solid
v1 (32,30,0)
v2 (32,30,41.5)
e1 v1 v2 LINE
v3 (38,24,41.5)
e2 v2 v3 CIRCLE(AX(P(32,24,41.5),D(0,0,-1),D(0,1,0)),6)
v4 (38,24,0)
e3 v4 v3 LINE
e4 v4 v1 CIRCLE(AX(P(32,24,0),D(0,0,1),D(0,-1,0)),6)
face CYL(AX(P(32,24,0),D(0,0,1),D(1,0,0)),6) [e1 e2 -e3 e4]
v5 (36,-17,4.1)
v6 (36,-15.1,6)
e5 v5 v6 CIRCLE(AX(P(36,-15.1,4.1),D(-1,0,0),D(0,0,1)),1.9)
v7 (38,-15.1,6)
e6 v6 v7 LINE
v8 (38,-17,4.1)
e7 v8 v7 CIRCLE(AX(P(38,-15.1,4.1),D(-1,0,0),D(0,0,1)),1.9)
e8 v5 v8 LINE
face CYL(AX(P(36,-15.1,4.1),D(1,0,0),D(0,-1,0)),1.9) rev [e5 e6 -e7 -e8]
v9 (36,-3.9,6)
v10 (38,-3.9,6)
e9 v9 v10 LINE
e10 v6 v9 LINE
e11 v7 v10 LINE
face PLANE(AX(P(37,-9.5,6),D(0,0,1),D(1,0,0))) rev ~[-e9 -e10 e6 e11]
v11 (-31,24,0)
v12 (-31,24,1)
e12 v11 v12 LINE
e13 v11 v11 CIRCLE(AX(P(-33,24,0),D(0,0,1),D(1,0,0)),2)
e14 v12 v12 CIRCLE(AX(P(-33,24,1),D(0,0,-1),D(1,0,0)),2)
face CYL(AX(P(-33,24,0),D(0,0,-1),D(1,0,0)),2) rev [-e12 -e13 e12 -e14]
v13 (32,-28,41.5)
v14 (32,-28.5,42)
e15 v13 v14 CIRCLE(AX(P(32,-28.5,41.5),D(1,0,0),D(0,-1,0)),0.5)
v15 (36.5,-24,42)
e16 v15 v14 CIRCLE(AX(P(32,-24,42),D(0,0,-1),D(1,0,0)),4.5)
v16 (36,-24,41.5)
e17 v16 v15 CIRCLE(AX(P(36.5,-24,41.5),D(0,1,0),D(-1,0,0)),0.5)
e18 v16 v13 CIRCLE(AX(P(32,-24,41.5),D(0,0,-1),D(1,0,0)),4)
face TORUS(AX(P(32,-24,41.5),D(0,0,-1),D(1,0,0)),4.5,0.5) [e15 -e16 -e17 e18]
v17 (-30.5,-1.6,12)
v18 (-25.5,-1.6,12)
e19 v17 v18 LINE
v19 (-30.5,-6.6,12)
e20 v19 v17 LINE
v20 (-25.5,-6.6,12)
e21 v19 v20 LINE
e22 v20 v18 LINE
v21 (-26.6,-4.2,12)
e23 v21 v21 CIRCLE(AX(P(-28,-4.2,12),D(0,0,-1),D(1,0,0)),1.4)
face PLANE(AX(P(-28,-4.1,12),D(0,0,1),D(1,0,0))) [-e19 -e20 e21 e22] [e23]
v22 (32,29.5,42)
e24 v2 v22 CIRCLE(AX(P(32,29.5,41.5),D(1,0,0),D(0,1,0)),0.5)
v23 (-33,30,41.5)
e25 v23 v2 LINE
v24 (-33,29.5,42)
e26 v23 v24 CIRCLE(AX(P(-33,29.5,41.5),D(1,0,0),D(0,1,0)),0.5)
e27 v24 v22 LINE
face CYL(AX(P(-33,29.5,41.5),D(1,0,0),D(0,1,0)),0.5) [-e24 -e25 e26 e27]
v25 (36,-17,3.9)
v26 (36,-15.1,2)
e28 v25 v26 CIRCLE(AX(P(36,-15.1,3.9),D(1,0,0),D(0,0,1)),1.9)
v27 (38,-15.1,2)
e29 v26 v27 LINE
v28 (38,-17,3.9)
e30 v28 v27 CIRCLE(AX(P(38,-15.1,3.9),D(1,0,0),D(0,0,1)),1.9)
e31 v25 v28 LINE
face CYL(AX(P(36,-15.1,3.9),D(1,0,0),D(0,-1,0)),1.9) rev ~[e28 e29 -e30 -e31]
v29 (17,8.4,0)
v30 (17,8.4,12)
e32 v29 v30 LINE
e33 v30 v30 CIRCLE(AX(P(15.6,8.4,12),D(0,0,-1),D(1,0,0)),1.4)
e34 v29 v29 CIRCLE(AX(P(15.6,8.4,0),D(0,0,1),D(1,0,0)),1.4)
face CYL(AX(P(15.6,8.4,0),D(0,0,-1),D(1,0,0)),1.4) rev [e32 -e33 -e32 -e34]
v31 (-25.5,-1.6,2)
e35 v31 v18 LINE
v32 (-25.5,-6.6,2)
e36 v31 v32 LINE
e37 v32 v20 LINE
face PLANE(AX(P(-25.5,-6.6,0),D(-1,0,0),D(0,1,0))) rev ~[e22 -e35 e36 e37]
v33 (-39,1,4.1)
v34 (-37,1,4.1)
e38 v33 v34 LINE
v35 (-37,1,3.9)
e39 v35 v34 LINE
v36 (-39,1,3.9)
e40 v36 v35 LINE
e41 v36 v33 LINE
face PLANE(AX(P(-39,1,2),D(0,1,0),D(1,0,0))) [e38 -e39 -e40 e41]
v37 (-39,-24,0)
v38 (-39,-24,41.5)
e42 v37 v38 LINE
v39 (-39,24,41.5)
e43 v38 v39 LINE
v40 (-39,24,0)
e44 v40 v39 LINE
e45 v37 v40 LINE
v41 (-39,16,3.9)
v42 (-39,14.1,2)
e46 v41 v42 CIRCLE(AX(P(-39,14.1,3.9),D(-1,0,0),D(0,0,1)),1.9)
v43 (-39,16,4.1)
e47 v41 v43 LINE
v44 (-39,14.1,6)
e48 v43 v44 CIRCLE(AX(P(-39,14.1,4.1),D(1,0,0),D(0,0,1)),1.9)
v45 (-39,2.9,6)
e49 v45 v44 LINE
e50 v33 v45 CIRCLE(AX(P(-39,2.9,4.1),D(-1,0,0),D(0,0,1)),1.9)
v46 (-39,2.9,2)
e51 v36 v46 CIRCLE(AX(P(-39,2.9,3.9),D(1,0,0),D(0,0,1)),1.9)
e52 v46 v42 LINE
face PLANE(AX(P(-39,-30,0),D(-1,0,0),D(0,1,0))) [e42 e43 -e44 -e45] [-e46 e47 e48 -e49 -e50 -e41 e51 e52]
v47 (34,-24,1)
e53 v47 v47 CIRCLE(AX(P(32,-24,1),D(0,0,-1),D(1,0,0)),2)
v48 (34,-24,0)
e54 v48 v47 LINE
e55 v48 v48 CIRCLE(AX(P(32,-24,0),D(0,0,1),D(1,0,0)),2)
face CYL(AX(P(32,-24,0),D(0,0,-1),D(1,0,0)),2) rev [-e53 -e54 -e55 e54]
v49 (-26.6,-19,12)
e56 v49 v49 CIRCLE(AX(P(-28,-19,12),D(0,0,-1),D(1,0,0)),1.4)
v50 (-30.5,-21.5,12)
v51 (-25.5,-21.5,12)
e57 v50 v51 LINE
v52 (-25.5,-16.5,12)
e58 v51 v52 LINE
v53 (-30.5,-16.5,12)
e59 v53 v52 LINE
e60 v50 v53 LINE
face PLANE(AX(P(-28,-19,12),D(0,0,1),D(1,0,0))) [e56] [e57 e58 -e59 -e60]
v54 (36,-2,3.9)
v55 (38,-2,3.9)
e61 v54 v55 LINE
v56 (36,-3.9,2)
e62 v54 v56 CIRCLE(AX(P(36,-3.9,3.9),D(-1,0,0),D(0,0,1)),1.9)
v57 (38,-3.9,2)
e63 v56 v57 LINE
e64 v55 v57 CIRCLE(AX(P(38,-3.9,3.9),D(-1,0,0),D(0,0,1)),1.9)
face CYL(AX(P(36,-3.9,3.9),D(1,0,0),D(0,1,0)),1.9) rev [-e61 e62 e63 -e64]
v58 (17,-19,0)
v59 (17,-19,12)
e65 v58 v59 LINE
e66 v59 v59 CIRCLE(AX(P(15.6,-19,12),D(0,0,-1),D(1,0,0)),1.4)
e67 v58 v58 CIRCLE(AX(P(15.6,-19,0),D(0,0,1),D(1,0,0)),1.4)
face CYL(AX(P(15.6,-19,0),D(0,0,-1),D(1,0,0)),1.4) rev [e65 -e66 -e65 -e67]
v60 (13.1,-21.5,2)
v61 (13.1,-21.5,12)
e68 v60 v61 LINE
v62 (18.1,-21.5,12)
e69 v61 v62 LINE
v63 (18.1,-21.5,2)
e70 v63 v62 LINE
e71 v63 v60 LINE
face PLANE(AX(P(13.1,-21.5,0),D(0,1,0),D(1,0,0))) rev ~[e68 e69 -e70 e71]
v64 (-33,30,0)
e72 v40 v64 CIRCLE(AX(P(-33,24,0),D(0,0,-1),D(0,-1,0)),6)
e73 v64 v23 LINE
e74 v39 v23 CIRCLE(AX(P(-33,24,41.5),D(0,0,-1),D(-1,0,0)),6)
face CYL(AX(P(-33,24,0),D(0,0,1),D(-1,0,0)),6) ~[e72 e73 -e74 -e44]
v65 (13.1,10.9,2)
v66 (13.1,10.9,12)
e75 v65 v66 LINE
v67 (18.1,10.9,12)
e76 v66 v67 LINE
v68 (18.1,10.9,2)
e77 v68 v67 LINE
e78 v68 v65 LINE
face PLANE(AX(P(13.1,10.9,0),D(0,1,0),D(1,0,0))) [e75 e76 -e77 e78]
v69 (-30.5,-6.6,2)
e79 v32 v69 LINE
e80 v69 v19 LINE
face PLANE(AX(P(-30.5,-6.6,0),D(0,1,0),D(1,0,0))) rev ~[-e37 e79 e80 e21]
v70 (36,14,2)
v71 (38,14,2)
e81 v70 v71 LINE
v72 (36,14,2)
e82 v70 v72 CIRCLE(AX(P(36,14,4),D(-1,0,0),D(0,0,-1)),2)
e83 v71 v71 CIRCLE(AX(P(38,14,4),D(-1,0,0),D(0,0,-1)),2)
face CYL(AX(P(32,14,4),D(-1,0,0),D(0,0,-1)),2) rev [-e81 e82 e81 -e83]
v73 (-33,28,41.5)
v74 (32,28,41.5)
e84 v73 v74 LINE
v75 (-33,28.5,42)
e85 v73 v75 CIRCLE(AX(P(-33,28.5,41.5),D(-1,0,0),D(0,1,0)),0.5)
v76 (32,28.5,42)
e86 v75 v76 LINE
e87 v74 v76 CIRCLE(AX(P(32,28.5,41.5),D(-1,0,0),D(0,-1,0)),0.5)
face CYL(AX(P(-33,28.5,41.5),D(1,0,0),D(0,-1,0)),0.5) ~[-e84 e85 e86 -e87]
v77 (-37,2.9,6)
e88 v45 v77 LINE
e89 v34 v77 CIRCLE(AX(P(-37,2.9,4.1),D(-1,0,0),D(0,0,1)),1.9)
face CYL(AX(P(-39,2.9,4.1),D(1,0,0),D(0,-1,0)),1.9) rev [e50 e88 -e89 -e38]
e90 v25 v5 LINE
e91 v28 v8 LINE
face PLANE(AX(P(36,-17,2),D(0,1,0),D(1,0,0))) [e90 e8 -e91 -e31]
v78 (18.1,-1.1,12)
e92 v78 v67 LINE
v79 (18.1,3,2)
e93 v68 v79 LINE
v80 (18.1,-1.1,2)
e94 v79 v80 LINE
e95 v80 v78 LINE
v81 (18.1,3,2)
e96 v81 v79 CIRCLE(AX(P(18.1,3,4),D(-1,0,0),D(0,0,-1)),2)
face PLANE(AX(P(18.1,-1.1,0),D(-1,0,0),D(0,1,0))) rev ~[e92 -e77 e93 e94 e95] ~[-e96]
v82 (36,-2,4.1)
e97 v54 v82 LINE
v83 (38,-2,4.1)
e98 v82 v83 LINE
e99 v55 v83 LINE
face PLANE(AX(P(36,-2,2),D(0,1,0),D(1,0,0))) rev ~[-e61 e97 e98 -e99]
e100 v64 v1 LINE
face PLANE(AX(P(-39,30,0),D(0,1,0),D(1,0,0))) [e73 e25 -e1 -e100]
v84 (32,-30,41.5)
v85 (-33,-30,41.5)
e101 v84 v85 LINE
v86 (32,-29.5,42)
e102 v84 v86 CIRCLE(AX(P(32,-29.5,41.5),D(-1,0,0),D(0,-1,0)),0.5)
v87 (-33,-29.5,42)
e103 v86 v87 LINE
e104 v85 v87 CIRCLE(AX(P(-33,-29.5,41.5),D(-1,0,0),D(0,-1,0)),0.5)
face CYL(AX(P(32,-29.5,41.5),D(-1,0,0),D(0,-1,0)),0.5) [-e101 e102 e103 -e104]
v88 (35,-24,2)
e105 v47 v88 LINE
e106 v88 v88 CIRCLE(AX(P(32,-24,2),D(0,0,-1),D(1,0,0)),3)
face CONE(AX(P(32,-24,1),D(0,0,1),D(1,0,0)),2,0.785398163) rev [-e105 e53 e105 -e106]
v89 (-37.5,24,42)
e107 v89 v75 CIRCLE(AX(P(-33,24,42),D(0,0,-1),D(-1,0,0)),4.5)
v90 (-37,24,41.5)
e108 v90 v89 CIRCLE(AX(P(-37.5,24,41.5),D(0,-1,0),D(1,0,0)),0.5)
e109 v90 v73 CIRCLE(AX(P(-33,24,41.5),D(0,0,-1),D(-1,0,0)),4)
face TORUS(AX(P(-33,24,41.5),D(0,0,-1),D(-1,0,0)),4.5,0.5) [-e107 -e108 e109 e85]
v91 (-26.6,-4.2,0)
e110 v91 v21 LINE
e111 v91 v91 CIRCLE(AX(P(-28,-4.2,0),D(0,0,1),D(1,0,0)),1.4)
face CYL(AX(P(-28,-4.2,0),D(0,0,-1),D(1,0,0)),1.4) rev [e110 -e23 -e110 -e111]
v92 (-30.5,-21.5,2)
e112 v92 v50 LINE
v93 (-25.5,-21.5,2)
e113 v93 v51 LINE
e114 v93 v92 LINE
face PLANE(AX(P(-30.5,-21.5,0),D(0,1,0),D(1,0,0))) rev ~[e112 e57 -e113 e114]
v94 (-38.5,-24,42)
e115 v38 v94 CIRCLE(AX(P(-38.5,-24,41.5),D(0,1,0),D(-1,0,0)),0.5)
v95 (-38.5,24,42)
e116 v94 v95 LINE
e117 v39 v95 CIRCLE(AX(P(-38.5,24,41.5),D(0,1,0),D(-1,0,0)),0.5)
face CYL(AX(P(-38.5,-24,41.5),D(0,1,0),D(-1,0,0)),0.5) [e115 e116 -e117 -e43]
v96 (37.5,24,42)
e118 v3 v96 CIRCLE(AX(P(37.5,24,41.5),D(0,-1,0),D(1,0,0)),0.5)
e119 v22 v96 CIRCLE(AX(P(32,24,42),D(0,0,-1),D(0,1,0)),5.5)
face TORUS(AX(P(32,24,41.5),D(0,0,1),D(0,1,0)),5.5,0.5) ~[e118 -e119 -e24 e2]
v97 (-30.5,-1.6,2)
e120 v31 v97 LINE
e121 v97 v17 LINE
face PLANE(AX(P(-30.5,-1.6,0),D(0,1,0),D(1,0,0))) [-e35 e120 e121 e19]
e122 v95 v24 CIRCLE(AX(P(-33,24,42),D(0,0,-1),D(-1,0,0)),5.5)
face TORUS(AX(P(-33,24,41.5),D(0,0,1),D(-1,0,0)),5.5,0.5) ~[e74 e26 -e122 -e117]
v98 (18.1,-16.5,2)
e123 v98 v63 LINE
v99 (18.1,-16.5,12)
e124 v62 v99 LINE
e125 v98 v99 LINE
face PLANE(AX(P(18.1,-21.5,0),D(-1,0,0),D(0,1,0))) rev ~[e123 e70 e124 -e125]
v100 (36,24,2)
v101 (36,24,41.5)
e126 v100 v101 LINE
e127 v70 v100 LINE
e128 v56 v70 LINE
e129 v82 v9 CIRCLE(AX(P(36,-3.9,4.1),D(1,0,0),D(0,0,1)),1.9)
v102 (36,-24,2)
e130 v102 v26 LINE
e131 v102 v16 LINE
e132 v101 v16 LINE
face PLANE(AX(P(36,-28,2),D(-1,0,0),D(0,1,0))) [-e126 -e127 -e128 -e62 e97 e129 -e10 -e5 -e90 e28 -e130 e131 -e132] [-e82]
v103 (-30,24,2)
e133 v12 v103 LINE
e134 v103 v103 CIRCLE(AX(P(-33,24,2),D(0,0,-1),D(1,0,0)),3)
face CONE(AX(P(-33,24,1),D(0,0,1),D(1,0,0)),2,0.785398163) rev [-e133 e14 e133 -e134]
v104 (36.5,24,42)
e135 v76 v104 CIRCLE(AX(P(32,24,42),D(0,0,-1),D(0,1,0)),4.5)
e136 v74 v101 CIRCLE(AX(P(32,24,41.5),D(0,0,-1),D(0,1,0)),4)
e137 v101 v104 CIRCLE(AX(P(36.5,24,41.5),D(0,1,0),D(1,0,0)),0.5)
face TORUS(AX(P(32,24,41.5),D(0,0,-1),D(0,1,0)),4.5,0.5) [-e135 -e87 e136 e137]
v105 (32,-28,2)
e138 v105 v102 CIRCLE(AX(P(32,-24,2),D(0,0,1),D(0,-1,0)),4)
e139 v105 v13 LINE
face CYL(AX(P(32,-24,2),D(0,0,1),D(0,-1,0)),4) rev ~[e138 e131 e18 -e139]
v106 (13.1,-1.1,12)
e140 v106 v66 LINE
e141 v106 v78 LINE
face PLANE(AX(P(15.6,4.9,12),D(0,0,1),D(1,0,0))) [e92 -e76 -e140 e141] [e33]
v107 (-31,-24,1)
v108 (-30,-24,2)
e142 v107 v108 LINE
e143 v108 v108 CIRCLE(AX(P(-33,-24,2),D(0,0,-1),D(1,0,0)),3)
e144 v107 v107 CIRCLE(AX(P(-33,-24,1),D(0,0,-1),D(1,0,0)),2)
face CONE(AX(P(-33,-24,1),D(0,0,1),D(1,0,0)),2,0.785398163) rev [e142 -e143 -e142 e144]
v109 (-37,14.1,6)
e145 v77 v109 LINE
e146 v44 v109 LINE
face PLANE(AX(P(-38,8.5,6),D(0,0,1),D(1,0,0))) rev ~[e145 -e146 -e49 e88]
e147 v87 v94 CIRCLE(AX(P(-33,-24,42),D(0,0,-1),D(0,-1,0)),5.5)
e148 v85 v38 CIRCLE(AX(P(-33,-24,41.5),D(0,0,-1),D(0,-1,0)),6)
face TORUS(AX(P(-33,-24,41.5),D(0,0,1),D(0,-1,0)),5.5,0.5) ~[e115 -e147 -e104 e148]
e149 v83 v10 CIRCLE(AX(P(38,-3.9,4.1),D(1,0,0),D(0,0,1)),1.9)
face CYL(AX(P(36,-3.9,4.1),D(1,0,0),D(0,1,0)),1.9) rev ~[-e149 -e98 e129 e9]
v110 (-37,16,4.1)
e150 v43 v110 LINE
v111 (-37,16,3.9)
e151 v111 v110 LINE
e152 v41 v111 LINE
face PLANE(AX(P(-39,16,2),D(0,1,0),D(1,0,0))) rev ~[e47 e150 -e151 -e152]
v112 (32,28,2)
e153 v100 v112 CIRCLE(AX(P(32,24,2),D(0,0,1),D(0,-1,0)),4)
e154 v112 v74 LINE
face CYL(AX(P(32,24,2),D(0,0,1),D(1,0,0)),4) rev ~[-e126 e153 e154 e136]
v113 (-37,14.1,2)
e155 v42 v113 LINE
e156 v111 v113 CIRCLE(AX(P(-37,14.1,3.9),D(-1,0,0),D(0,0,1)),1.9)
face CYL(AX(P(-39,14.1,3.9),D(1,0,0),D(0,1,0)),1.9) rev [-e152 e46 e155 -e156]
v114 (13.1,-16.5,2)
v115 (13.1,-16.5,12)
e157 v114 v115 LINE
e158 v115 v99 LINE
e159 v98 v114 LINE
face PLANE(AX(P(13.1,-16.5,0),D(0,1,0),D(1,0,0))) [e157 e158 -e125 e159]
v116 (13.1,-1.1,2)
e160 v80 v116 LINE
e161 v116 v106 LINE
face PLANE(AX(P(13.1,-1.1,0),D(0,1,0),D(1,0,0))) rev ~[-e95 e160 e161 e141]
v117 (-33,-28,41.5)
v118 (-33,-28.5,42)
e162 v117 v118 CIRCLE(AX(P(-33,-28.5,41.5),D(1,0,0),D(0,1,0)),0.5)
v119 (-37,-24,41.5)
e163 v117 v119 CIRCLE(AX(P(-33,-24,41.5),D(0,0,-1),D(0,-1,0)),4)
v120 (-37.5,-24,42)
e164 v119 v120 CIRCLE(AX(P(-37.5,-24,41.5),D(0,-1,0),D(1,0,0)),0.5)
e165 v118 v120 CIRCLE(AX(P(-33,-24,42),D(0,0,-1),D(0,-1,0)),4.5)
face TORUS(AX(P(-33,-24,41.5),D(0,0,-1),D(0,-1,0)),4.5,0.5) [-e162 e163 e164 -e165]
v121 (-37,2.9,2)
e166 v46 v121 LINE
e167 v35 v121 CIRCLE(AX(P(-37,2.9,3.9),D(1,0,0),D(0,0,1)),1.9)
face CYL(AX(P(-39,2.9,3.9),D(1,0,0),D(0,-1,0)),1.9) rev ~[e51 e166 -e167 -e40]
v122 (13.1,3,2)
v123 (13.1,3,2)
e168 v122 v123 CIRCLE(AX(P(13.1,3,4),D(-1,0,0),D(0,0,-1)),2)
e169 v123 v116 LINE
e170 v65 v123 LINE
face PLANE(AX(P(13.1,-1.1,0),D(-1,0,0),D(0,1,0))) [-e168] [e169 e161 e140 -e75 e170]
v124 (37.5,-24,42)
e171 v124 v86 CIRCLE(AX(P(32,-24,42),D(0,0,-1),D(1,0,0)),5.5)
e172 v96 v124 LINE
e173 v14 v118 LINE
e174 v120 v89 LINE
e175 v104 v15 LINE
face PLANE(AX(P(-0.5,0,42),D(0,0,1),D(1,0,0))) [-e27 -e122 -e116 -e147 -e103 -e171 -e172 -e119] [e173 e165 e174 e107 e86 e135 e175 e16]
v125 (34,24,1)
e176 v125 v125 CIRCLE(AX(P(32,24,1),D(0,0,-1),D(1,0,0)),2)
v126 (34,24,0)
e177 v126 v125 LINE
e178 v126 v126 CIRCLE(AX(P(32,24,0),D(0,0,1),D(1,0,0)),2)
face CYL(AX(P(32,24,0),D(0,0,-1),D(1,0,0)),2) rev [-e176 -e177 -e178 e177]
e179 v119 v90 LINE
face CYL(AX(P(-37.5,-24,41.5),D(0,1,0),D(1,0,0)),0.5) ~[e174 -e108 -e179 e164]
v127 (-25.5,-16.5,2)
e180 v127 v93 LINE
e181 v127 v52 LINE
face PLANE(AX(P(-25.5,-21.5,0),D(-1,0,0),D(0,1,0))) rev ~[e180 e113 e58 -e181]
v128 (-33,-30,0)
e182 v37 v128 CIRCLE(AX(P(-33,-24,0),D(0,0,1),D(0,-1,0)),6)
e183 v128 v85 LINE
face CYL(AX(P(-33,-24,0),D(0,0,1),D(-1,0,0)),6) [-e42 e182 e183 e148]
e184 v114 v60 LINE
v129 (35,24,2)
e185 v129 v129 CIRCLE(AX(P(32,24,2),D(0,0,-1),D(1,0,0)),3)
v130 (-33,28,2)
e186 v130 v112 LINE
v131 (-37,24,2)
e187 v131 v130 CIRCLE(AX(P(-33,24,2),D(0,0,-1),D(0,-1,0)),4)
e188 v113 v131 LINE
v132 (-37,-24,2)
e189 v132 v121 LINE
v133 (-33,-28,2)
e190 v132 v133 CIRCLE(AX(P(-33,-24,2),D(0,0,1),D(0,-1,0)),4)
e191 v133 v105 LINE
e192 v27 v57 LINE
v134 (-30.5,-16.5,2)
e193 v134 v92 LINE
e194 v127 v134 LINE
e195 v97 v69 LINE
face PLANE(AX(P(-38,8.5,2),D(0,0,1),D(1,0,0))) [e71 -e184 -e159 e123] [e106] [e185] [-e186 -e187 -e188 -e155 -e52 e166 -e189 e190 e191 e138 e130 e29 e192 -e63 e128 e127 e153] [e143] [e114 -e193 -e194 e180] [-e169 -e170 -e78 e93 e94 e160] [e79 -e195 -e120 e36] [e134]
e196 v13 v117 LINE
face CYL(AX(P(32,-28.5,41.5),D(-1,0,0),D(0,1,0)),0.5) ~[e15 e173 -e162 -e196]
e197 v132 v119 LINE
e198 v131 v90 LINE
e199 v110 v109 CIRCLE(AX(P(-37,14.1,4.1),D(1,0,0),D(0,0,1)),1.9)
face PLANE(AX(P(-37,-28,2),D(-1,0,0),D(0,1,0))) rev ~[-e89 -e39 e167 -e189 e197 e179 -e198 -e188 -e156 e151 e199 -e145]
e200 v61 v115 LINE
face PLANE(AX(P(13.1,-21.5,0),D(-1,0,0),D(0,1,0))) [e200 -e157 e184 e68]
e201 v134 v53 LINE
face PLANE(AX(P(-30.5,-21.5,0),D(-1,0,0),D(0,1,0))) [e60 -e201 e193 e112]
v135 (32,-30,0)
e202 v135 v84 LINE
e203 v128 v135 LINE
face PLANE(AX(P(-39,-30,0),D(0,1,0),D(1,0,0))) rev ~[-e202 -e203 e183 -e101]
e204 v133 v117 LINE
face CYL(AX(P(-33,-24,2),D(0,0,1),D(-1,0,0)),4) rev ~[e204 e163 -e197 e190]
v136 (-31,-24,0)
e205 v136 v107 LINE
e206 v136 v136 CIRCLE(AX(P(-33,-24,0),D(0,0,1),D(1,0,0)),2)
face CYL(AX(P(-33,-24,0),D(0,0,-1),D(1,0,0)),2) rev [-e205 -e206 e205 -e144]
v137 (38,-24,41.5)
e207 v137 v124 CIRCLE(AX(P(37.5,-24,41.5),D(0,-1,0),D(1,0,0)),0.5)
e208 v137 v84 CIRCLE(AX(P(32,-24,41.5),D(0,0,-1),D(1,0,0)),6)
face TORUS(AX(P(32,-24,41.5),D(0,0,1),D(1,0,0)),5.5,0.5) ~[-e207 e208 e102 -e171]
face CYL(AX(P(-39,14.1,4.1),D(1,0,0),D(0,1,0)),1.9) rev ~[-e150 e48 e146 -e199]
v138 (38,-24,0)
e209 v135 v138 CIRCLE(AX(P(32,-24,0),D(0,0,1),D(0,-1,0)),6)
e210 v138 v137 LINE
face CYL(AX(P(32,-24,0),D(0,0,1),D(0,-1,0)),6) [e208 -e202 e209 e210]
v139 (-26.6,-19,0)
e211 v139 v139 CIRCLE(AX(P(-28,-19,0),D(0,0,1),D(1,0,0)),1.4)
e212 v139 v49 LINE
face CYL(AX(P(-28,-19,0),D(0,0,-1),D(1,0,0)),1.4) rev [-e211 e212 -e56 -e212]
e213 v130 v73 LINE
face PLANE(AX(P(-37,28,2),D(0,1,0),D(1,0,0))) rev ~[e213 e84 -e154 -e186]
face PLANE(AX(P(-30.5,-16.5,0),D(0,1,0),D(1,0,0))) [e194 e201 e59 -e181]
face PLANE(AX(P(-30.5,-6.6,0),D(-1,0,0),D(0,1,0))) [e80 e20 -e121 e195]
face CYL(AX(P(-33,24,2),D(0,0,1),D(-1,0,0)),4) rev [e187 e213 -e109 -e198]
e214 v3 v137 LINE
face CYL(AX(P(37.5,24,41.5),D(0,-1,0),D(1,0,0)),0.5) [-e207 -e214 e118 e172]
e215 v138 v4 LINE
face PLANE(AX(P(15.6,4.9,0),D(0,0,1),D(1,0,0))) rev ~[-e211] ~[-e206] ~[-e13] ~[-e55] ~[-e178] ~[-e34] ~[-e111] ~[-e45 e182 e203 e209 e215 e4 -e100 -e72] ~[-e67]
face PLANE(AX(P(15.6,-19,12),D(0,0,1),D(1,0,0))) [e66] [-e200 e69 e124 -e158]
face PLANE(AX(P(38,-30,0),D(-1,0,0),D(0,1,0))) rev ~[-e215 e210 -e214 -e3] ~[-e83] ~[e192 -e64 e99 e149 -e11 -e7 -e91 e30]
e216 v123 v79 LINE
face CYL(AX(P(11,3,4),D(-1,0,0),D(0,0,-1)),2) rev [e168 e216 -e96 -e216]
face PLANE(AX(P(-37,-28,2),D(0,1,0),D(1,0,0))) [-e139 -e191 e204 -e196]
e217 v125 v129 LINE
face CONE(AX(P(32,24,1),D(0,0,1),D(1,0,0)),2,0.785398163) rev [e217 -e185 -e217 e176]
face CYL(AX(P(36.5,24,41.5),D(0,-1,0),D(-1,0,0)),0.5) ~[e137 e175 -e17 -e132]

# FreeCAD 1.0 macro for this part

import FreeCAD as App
import Part
import Sketcher


def edges_at(feature, points):
    """Names of the edges that pass closest to the given points."""
    edges = feature.Shape.Edges
    near = lambda p: min(range(len(edges)), key=lambda i: edges[i].distToShape(Part.Vertex(*p))[0])
    return sorted({f"Edge{near(p) + 1}" for p in points})

doc = App.newDocument("Part")
body = doc.addObject("PartDesign::Body", "Body")

# Sketch on XY plane
sketch1 = body.newObject("Sketcher::SketchObject", "Sketch")
sketch1.AttachmentSupport = (doc.getObject("XY_Plane"), [""])
sketch1.MapMode = "FlatFace"
sketch1.addGeometry(Part.Circle(App.Vector(-28, -4.2, 0), App.Vector(0, 0, 1), 1.4), False)
sketch1.addConstraint([
    Sketcher.Constraint("Diameter", 0, 2.8),
    Sketcher.Constraint("DistanceX", 0, 3, -1, 1, 28.0),
    Sketcher.Constraint("DistanceY", 0, 3, -1, 1, 4.2),
])
pad1 = body.newObject("PartDesign::Pad", "Pad")
pad1.Profile = sketch1
pad1.Length = 14
body2 = doc.addObject("PartDesign::Body", "Body001")

# Sketch on XY plane
sketch2 = body2.newObject("Sketcher::SketchObject", "Sketch001")
sketch2.AttachmentSupport = (doc.getObject("XY_Plane001"), [""])
sketch2.MapMode = "FlatFace"
sketch2.addGeometry(Part.Circle(App.Vector(15.6, 8.4, 0), App.Vector(0, 0, 1), 1.4), False)
sketch2.addConstraint([
    Sketcher.Constraint("Diameter", 0, 2.8),
    Sketcher.Constraint("DistanceX", -1, 1, 0, 3, 15.6),
    Sketcher.Constraint("DistanceY", -1, 1, 0, 3, 8.4),
])
pad2 = body2.newObject("PartDesign::Pad", "Pad001")
pad2.Profile = sketch2
pad2.Length = 14
body3 = doc.addObject("PartDesign::Body", "Body002")

# Sketch on XY plane
sketch3 = body3.newObject("Sketcher::SketchObject", "Sketch002")
sketch3.AttachmentSupport = (doc.getObject("XY_Plane002"), [""])
sketch3.MapMode = "FlatFace"
sketch3.addGeometry(Part.Circle(App.Vector(15.6, -19, 0), App.Vector(0, 0, 1), 1.4), False)
sketch3.addConstraint([
    Sketcher.Constraint("Diameter", 0, 2.8),
    Sketcher.Constraint("DistanceY", 0, 3, -1, 1, 19.0),
    Sketcher.Constraint("DistanceX", -1, 1, 0, 3, 15.6),
])
pad3 = body3.newObject("PartDesign::Pad", "Pad002")
pad3.Profile = sketch3
pad3.Length = 14
body4 = doc.addObject("PartDesign::Body", "Body003")

# Sketch on XY plane
sketch4 = body4.newObject("Sketcher::SketchObject", "Sketch003")
sketch4.AttachmentSupport = (doc.getObject("XY_Plane003"), [""])
sketch4.MapMode = "FlatFace"
sketch4.addGeometry(Part.Circle(App.Vector(32, 24, 0), App.Vector(0, 0, 1), 2), False)
sketch4.addConstraint([
    Sketcher.Constraint("Diameter", 0, 4.0),
    Sketcher.Constraint("DistanceX", -1, 1, 0, 3, 32.0),
    Sketcher.Constraint("DistanceY", -1, 1, 0, 3, 24.0),
])
pad4 = body4.newObject("PartDesign::Pad", "Pad003")
pad4.Profile = sketch4
pad4.Length = 40
body5 = doc.addObject("PartDesign::Body", "Body004")

# Sketch on XY plane
sketch5 = body5.newObject("Sketcher::SketchObject", "Sketch004")
sketch5.AttachmentSupport = (doc.getObject("XY_Plane004"), [""])
sketch5.MapMode = "FlatFace"
sketch5.addGeometry(Part.Circle(App.Vector(32, -24, 0), App.Vector(0, 0, 1), 2), False)
sketch5.addConstraint([
    Sketcher.Constraint("Diameter", 0, 4.0),
    Sketcher.Constraint("DistanceX", -1, 1, 0, 3, 32.0),
    Sketcher.Constraint("DistanceY", 0, 3, -1, 1, 24.0),
])
pad5 = body5.newObject("PartDesign::Pad", "Pad004")
pad5.Profile = sketch5
pad5.Length = 40
body6 = doc.addObject("PartDesign::Body", "Body005")

# Sketch on XY plane
sketch6 = body6.newObject("Sketcher::SketchObject", "Sketch005")
sketch6.AttachmentSupport = (doc.getObject("XY_Plane005"), [""])
sketch6.MapMode = "FlatFace"
sketch6.addGeometry(Part.Circle(App.Vector(-33, 24, 0), App.Vector(0, 0, 1), 2), False)
sketch6.addConstraint([
    Sketcher.Constraint("Diameter", 0, 4.0),
    Sketcher.Constraint("DistanceX", 0, 3, -1, 1, 33.0),
    Sketcher.Constraint("DistanceY", -1, 1, 0, 3, 24.0),
])
pad6 = body6.newObject("PartDesign::Pad", "Pad005")
pad6.Profile = sketch6
pad6.Length = 40
body7 = doc.addObject("PartDesign::Body", "Body006")

# Sketch on XY plane
sketch7 = body7.newObject("Sketcher::SketchObject", "Sketch006")
sketch7.AttachmentSupport = (doc.getObject("XY_Plane006"), [""])
sketch7.MapMode = "FlatFace"
sketch7.addGeometry(Part.Circle(App.Vector(-33, -24, 0), App.Vector(0, 0, 1), 2), False)
sketch7.addConstraint([
    Sketcher.Constraint("Diameter", 0, 4.0),
    Sketcher.Constraint("DistanceX", 0, 3, -1, 1, 33.0),
    Sketcher.Constraint("DistanceY", 0, 3, -1, 1, 24.0),
])
pad7 = body7.newObject("PartDesign::Pad", "Pad006")
pad7.Profile = sketch7
pad7.Length = 40
body8 = doc.addObject("PartDesign::Body", "Body007")

# Sketch on YZ plane
sketch8 = body8.newObject("Sketcher::SketchObject", "Sketch007")
sketch8.AttachmentSupport = (doc.getObject("YZ_Plane007"), [""])
sketch8.MapMode = "FlatFace"
sketch8.AttachmentOffset = App.Placement(App.Vector(0, 0, 32), App.Rotation())
sketch8.addGeometry(Part.Circle(App.Vector(14, 4, 0), App.Vector(0, 0, 1), 2), False)
sketch8.addConstraint([
    Sketcher.Constraint("Diameter", 0, 4.0),
    Sketcher.Constraint("DistanceX", -1, 1, 0, 3, 14.0),
    Sketcher.Constraint("DistanceY", -1, 1, 0, 3, 4.0),
])
pad8 = body8.newObject("PartDesign::Pad", "Pad007")
pad8.Profile = sketch8
pad8.Length = 10
body9 = doc.addObject("PartDesign::Body", "Body008")

# Sketch on XY plane
sketch9 = body9.newObject("Sketcher::SketchObject", "Sketch008")
sketch9.AttachmentSupport = (doc.getObject("XY_Plane008"), [""])
sketch9.MapMode = "FlatFace"
sketch9.AttachmentOffset = App.Placement(App.Vector(0, 0, 2), App.Rotation())
sketch9.addGeometry([
    Part.LineSegment(App.Vector(-39, 16, 0), App.Vector(-39, 1, 0)),
    Part.LineSegment(App.Vector(-39, 1, 0), App.Vector(-37, 1, 0)),
    Part.LineSegment(App.Vector(-37, 1, 0), App.Vector(-37, 16, 0)),
    Part.LineSegment(App.Vector(-37, 16, 0), App.Vector(-39, 16, 0)),
], False)
sketch9.addConstraint([
    Sketcher.Constraint("Coincident", 0, 2, 1, 1),
    Sketcher.Constraint("Coincident", 1, 2, 2, 1),
    Sketcher.Constraint("Coincident", 2, 2, 3, 1),
    Sketcher.Constraint("Coincident", 3, 2, 0, 1),
    Sketcher.Constraint("Vertical", 0),
    Sketcher.Constraint("Horizontal", 1),
    Sketcher.Constraint("Vertical", 2),
    Sketcher.Constraint("Horizontal", 3),
    Sketcher.Constraint("DistanceX", 1, 1, 1, 2, 2.0),
    Sketcher.Constraint("DistanceY", 0, 2, 0, 1, 15.0),
    Sketcher.Constraint("DistanceX", 0, 2, -1, 1, 39.0),
    Sketcher.Constraint("DistanceY", -1, 1, 0, 2, 1.0),
])
pad9 = body9.newObject("PartDesign::Pad", "Pad008")
pad9.Profile = sketch9
pad9.Length = 4
doc.recompute()

fillet = body9.newObject("PartDesign::Fillet", "Fillet")
fillet.Base = (pad9, edges_at(pad9, [
    (-38, 1, 2),
    (-38, 1, 6),
    (-38, 16, 2),
    (-38, 16, 6),
]))
fillet.Radius = 1.9
body10 = doc.addObject("PartDesign::Body", "Body009")

# Sketch on XY plane
sketch10 = body10.newObject("Sketcher::SketchObject", "Sketch009")
sketch10.AttachmentSupport = (doc.getObject("XY_Plane009"), [""])
sketch10.MapMode = "FlatFace"
sketch10.AttachmentOffset = App.Placement(App.Vector(0, 0, 2), App.Rotation())
sketch10.addGeometry([
    Part.LineSegment(App.Vector(36, -2, 0), App.Vector(36, -17, 0)),
    Part.LineSegment(App.Vector(36, -17, 0), App.Vector(38, -17, 0)),
    Part.LineSegment(App.Vector(38, -17, 0), App.Vector(38, -2, 0)),
    Part.LineSegment(App.Vector(38, -2, 0), App.Vector(36, -2, 0)),
], False)
sketch10.addConstraint([
    Sketcher.Constraint("Coincident", 0, 2, 1, 1),
    Sketcher.Constraint("Coincident", 1, 2, 2, 1),
    Sketcher.Constraint("Coincident", 2, 2, 3, 1),
    Sketcher.Constraint("Coincident", 3, 2, 0, 1),
    Sketcher.Constraint("Vertical", 0),
    Sketcher.Constraint("Horizontal", 1),
    Sketcher.Constraint("Vertical", 2),
    Sketcher.Constraint("Horizontal", 3),
    Sketcher.Constraint("DistanceX", 1, 1, 1, 2, 2.0),
    Sketcher.Constraint("DistanceY", 0, 2, 0, 1, 15.0),
    Sketcher.Constraint("DistanceX", -1, 1, 0, 2, 36.0),
    Sketcher.Constraint("DistanceY", 0, 2, -1, 1, 17.0),
])
pad10 = body10.newObject("PartDesign::Pad", "Pad009")
pad10.Profile = sketch10
pad10.Length = 4
doc.recompute()

fillet2 = body10.newObject("PartDesign::Fillet", "Fillet001")
fillet2.Base = (pad10, edges_at(pad10, [
    (37, -17, 2),
    (37, -17, 6),
    (37, -2, 2),
    (37, -2, 6),
]))
fillet2.Radius = 1.9
body11 = doc.addObject("PartDesign::Body", "Body010")
body11.AllowCompound = True

# Sketch on XY plane
sketch11 = body11.newObject("Sketcher::SketchObject", "Sketch010")
sketch11.AttachmentSupport = (doc.getObject("XY_Plane010"), [""])
sketch11.MapMode = "FlatFace"
sketch11.addGeometry(Part.Circle(App.Vector(-28, -19, 0), App.Vector(0, 0, 1), 1.4), False)
sketch11.addConstraint([
    Sketcher.Constraint("Diameter", 0, 2.8),
    Sketcher.Constraint("DistanceX", 0, 3, -1, 1, 28.0),
    Sketcher.Constraint("DistanceY", 0, 3, -1, 1, 19.0),
])
pad11 = body11.newObject("PartDesign::Pad", "Pad010")
pad11.Profile = sketch11
pad11.Length = 14
doc.recompute()

boolean = body11.newObject("PartDesign::Boolean", "Boolean")
boolean.Type = "Fuse"
boolean.addObjects([body])
doc.recompute()

boolean2 = body11.newObject("PartDesign::Boolean", "Boolean001")
boolean2.Type = "Fuse"
boolean2.addObjects([body2])
doc.recompute()

boolean3 = body11.newObject("PartDesign::Boolean", "Boolean002")
boolean3.Type = "Fuse"
boolean3.addObjects([body3])
doc.recompute()

boolean4 = body11.newObject("PartDesign::Boolean", "Boolean003")
boolean4.Type = "Fuse"
boolean4.addObjects([body4])
doc.recompute()

boolean5 = body11.newObject("PartDesign::Boolean", "Boolean004")
boolean5.Type = "Fuse"
boolean5.addObjects([body5])
doc.recompute()

boolean6 = body11.newObject("PartDesign::Boolean", "Boolean005")
boolean6.Type = "Fuse"
boolean6.addObjects([body6])
doc.recompute()

boolean7 = body11.newObject("PartDesign::Boolean", "Boolean006")
boolean7.Type = "Fuse"
boolean7.addObjects([body7])
doc.recompute()

boolean8 = body11.newObject("PartDesign::Boolean", "Boolean007")
boolean8.Type = "Fuse"
boolean8.addObjects([body8])
doc.recompute()

boolean9 = body11.newObject("PartDesign::Boolean", "Boolean008")
boolean9.Type = "Fuse"
boolean9.addObjects([body9])
doc.recompute()

boolean10 = body11.newObject("PartDesign::Boolean", "Boolean009")
boolean10.Type = "Fuse"
boolean10.addObjects([body10])
body12 = doc.addObject("PartDesign::Body", "Body011")

# Sketch on XY plane
sketch12 = body12.newObject("Sketcher::SketchObject", "Sketch011")
sketch12.AttachmentSupport = (doc.getObject("XY_Plane011"), [""])
sketch12.MapMode = "FlatFace"
sketch12.addGeometry([
    Part.LineSegment(App.Vector(-30.5, -16.5, 0), App.Vector(-30.5, -21.5, 0)),
    Part.LineSegment(App.Vector(-30.5, -21.5, 0), App.Vector(-25.5, -21.5, 0)),
    Part.LineSegment(App.Vector(-25.5, -21.5, 0), App.Vector(-25.5, -16.5, 0)),
    Part.LineSegment(App.Vector(-25.5, -16.5, 0), App.Vector(-30.5, -16.5, 0)),
], False)
sketch12.addConstraint([
    Sketcher.Constraint("Coincident", 0, 2, 1, 1),
    Sketcher.Constraint("Coincident", 1, 2, 2, 1),
    Sketcher.Constraint("Coincident", 2, 2, 3, 1),
    Sketcher.Constraint("Coincident", 3, 2, 0, 1),
    Sketcher.Constraint("Vertical", 0),
    Sketcher.Constraint("Horizontal", 1),
    Sketcher.Constraint("Vertical", 2),
    Sketcher.Constraint("Horizontal", 3),
    Sketcher.Constraint("Equal", 3, 0),
    Sketcher.Constraint("DistanceX", 1, 1, 1, 2, 5.0),
    Sketcher.Constraint("DistanceX", 0, 2, -1, 1, 30.5),
    Sketcher.Constraint("DistanceY", 0, 2, -1, 1, 21.5),
])
pad12 = body12.newObject("PartDesign::Pad", "Pad011")
pad12.Profile = sketch12
pad12.Length = 12
body13 = doc.addObject("PartDesign::Body", "Body012")

# Sketch on XY plane
sketch13 = body13.newObject("Sketcher::SketchObject", "Sketch012")
sketch13.AttachmentSupport = (doc.getObject("XY_Plane012"), [""])
sketch13.MapMode = "FlatFace"
sketch13.addGeometry([
    Part.LineSegment(App.Vector(13.1, -16.5, 0), App.Vector(13.1, -21.5, 0)),
    Part.LineSegment(App.Vector(13.1, -21.5, 0), App.Vector(18.1, -21.5, 0)),
    Part.LineSegment(App.Vector(18.1, -21.5, 0), App.Vector(18.1, -16.5, 0)),
    Part.LineSegment(App.Vector(18.1, -16.5, 0), App.Vector(13.1, -16.5, 0)),
], False)
sketch13.addConstraint([
    Sketcher.Constraint("Coincident", 0, 2, 1, 1),
    Sketcher.Constraint("Coincident", 1, 2, 2, 1),
    Sketcher.Constraint("Coincident", 2, 2, 3, 1),
    Sketcher.Constraint("Coincident", 3, 2, 0, 1),
    Sketcher.Constraint("Vertical", 0),
    Sketcher.Constraint("Horizontal", 1),
    Sketcher.Constraint("Vertical", 2),
    Sketcher.Constraint("Horizontal", 3),
    Sketcher.Constraint("Equal", 3, 0),
    Sketcher.Constraint("DistanceX", 1, 1, 1, 2, 5.0),
    Sketcher.Constraint("DistanceX", -1, 1, 0, 2, 13.1),
    Sketcher.Constraint("DistanceY", 0, 2, -1, 1, 21.5),
])
pad13 = body13.newObject("PartDesign::Pad", "Pad012")
pad13.Profile = sketch13
pad13.Length = 12
body14 = doc.addObject("PartDesign::Body", "Body013")

# Sketch on XY plane
sketch14 = body14.newObject("Sketcher::SketchObject", "Sketch013")
sketch14.AttachmentSupport = (doc.getObject("XY_Plane013"), [""])
sketch14.MapMode = "FlatFace"
sketch14.addGeometry([
    Part.LineSegment(App.Vector(-30.5, -1.6, 0), App.Vector(-30.5, -6.6, 0)),
    Part.LineSegment(App.Vector(-30.5, -6.6, 0), App.Vector(-25.5, -6.6, 0)),
    Part.LineSegment(App.Vector(-25.5, -6.6, 0), App.Vector(-25.5, -1.6, 0)),
    Part.LineSegment(App.Vector(-25.5, -1.6, 0), App.Vector(-30.5, -1.6, 0)),
], False)
sketch14.addConstraint([
    Sketcher.Constraint("Coincident", 0, 2, 1, 1),
    Sketcher.Constraint("Coincident", 1, 2, 2, 1),
    Sketcher.Constraint("Coincident", 2, 2, 3, 1),
    Sketcher.Constraint("Coincident", 3, 2, 0, 1),
    Sketcher.Constraint("Vertical", 0),
    Sketcher.Constraint("Horizontal", 1),
    Sketcher.Constraint("Vertical", 2),
    Sketcher.Constraint("Horizontal", 3),
    Sketcher.Constraint("Equal", 3, 0),
    Sketcher.Constraint("DistanceX", 1, 1, 1, 2, 5.0),
    Sketcher.Constraint("DistanceX", 0, 2, -1, 1, 30.5),
    Sketcher.Constraint("DistanceY", 0, 2, -1, 1, 6.6),
])
pad14 = body14.newObject("PartDesign::Pad", "Pad013")
pad14.Profile = sketch14
pad14.Length = 12
body15 = doc.addObject("PartDesign::Body", "Body014")

# Sketch on YZ plane
sketch15 = body15.newObject("Sketcher::SketchObject", "Sketch014")
sketch15.AttachmentSupport = (doc.getObject("YZ_Plane014"), [""])
sketch15.MapMode = "FlatFace"
sketch15.AttachmentOffset = App.Placement(App.Vector(0, 0, 11), App.Rotation())
sketch15.addGeometry(Part.Circle(App.Vector(3, 4, 0), App.Vector(0, 0, 1), 2), False)
sketch15.addConstraint([
    Sketcher.Constraint("Diameter", 0, 4.0),
    Sketcher.Constraint("DistanceX", -1, 1, 0, 3, 3.0),
    Sketcher.Constraint("DistanceY", -1, 1, 0, 3, 4.0),
])
pad15 = body15.newObject("PartDesign::Pad", "Pad014")
pad15.Profile = sketch15
pad15.Length = 10
body16 = doc.addObject("PartDesign::Body", "Body015")

# Sketch on XY plane
sketch16 = body16.newObject("Sketcher::SketchObject", "Sketch015")
sketch16.AttachmentSupport = (doc.getObject("XY_Plane015"), [""])
sketch16.MapMode = "FlatFace"
sketch16.addGeometry([
    Part.LineSegment(App.Vector(13.1, 10.9, 0), App.Vector(13.1, -1.1, 0)),
    Part.LineSegment(App.Vector(13.1, -1.1, 0), App.Vector(18.1, -1.1, 0)),
    Part.LineSegment(App.Vector(18.1, -1.1, 0), App.Vector(18.1, 10.9, 0)),
    Part.LineSegment(App.Vector(18.1, 10.9, 0), App.Vector(13.1, 10.9, 0)),
], False)
sketch16.addConstraint([
    Sketcher.Constraint("Coincident", 0, 2, 1, 1),
    Sketcher.Constraint("Coincident", 1, 2, 2, 1),
    Sketcher.Constraint("Coincident", 2, 2, 3, 1),
    Sketcher.Constraint("Coincident", 3, 2, 0, 1),
    Sketcher.Constraint("Vertical", 0),
    Sketcher.Constraint("Horizontal", 1),
    Sketcher.Constraint("Vertical", 2),
    Sketcher.Constraint("Horizontal", 3),
    Sketcher.Constraint("DistanceX", 1, 1, 1, 2, 5.0),
    Sketcher.Constraint("DistanceY", 0, 2, 0, 1, 12.0),
    Sketcher.Constraint("DistanceX", -1, 1, 0, 2, 13.1),
    Sketcher.Constraint("DistanceY", 0, 2, -1, 1, 1.1),
])
pad16 = body16.newObject("PartDesign::Pad", "Pad015")
pad16.Profile = sketch16
pad16.Length = 12
doc.recompute()

boolean11 = body16.newObject("PartDesign::Boolean", "Boolean010")
boolean11.Type = "Cut"
boolean11.addObjects([body15])
body17 = doc.addObject("PartDesign::Body", "Body016")

# Sketch on XY plane
sketch17 = body17.newObject("Sketcher::SketchObject", "Sketch016")
sketch17.AttachmentSupport = (doc.getObject("XY_Plane016"), [""])
sketch17.MapMode = "FlatFace"
sketch17.AttachmentOffset = App.Placement(App.Vector(0, 0, 2), App.Rotation())
sketch17.addGeometry([
    Part.LineSegment(App.Vector(-37, 28, 0), App.Vector(-37, -28, 0)),
    Part.LineSegment(App.Vector(-37, -28, 0), App.Vector(36, -28, 0)),
    Part.LineSegment(App.Vector(36, -28, 0), App.Vector(36, 28, 0)),
    Part.LineSegment(App.Vector(36, 28, 0), App.Vector(-37, 28, 0)),
], False)
sketch17.addConstraint([
    Sketcher.Constraint("Coincident", 0, 2, 1, 1),
    Sketcher.Constraint("Coincident", 1, 2, 2, 1),
    Sketcher.Constraint("Coincident", 2, 2, 3, 1),
    Sketcher.Constraint("Coincident", 3, 2, 0, 1),
    Sketcher.Constraint("Vertical", 0),
    Sketcher.Constraint("Horizontal", 1),
    Sketcher.Constraint("Vertical", 2),
    Sketcher.Constraint("Horizontal", 3),
    Sketcher.Constraint("DistanceX", 1, 1, 1, 2, 73.0),
    Sketcher.Constraint("DistanceY", 0, 2, 0, 1, 56.0),
    Sketcher.Constraint("DistanceX", 0, 2, -1, 1, 37.0),
    Sketcher.Constraint("DistanceY", 0, 2, -1, 1, 28.0),
])
pad17 = body17.newObject("PartDesign::Pad", "Pad016")
pad17.Profile = sketch17
pad17.Length = 40
doc.recompute()

fillet3 = body17.newObject("PartDesign::Fillet", "Fillet002")
fillet3.Base = (pad17, edges_at(pad17, [
    (-37, -28, 22),
    (-37, 28, 22),
    (36, -28, 22),
    (36, 28, 22),
]))
fillet3.Radius = 4
body18 = doc.addObject("PartDesign::Body", "Body017")

# Sketch on XY plane
sketch18 = body18.newObject("Sketcher::SketchObject", "Sketch017")
sketch18.AttachmentSupport = (doc.getObject("XY_Plane017"), [""])
sketch18.MapMode = "FlatFace"
sketch18.addGeometry([
    Part.LineSegment(App.Vector(-39, 30, 0), App.Vector(-39, -30, 0)),
    Part.LineSegment(App.Vector(-39, -30, 0), App.Vector(38, -30, 0)),
    Part.LineSegment(App.Vector(38, -30, 0), App.Vector(38, 30, 0)),
    Part.LineSegment(App.Vector(38, 30, 0), App.Vector(-39, 30, 0)),
], False)
sketch18.addConstraint([
    Sketcher.Constraint("Coincident", 0, 2, 1, 1),
    Sketcher.Constraint("Coincident", 1, 2, 2, 1),
    Sketcher.Constraint("Coincident", 2, 2, 3, 1),
    Sketcher.Constraint("Coincident", 3, 2, 0, 1),
    Sketcher.Constraint("Vertical", 0),
    Sketcher.Constraint("Horizontal", 1),
    Sketcher.Constraint("Vertical", 2),
    Sketcher.Constraint("Horizontal", 3),
    Sketcher.Constraint("DistanceX", 1, 1, 1, 2, 77.0),
    Sketcher.Constraint("DistanceY", 0, 2, 0, 1, 60.0),
    Sketcher.Constraint("DistanceX", 0, 2, -1, 1, 39.0),
    Sketcher.Constraint("DistanceY", 0, 2, -1, 1, 30.0),
])
pad18 = body18.newObject("PartDesign::Pad", "Pad017")
pad18.Profile = sketch18
pad18.Length = 42
doc.recompute()

fillet4 = body18.newObject("PartDesign::Fillet", "Fillet003")
fillet4.Base = (pad18, edges_at(pad18, [
    (-39, -30, 21),
    (-39, 30, 21),
    (38, -30, 21),
    (38, 30, 21),
]))
fillet4.Radius = 6
doc.recompute()

boolean12 = body18.newObject("PartDesign::Boolean", "Boolean011")
boolean12.Type = "Cut"
boolean12.addObjects([body17])
doc.recompute()

boolean13 = body18.newObject("PartDesign::Boolean", "Boolean012")
boolean13.Type = "Fuse"
boolean13.addObjects([body12])
doc.recompute()

boolean14 = body18.newObject("PartDesign::Boolean", "Boolean013")
boolean14.Type = "Fuse"
boolean14.addObjects([body13])
doc.recompute()

boolean15 = body18.newObject("PartDesign::Boolean", "Boolean014")
boolean15.Type = "Fuse"
boolean15.addObjects([body14])
doc.recompute()

boolean16 = body18.newObject("PartDesign::Boolean", "Boolean015")
boolean16.Type = "Fuse"
boolean16.addObjects([body16])
doc.recompute()

boolean17 = body18.newObject("PartDesign::Boolean", "Boolean016")
boolean17.Type = "Cut"
boolean17.addObjects([body11])
doc.recompute()

chamfer = body18.newObject("PartDesign::Chamfer", "Chamfer")
chamfer.Base = (boolean17, edges_at(boolean17, [
    (30, 24, 2),
    (-35, 24, 2),
    (-35, -24, 2),
    (30, -24, 2),
]))
chamfer.Size = 1
doc.recompute()

fillet5 = body18.newObject("PartDesign::Fillet", "Fillet004")
fillet5.Base = (chamfer, edges_at(chamfer, [
    (-39, 0, 42),
    (-37.243, -28.243, 42),
    (-37.243, 28.243, 42),
    (-0.5, -30, 42),
    (-0.5, 30, 42),
    (36.243, -28.243, 42),
    (36.243, 28.243, 42),
    (38, 0, 42),
    (-37, 0, 42),
    (-35.828, -26.828, 42),
    (-0.5, -28, 42),
    (34.828, -26.828, 42),
    (-35.828, 26.828, 42),
    (36, 0, 42),
    (-0.5, 28, 42),
    (34.828, 26.828, 42),
]))
fillet5.Radius = 0.5

doc.recompute()
